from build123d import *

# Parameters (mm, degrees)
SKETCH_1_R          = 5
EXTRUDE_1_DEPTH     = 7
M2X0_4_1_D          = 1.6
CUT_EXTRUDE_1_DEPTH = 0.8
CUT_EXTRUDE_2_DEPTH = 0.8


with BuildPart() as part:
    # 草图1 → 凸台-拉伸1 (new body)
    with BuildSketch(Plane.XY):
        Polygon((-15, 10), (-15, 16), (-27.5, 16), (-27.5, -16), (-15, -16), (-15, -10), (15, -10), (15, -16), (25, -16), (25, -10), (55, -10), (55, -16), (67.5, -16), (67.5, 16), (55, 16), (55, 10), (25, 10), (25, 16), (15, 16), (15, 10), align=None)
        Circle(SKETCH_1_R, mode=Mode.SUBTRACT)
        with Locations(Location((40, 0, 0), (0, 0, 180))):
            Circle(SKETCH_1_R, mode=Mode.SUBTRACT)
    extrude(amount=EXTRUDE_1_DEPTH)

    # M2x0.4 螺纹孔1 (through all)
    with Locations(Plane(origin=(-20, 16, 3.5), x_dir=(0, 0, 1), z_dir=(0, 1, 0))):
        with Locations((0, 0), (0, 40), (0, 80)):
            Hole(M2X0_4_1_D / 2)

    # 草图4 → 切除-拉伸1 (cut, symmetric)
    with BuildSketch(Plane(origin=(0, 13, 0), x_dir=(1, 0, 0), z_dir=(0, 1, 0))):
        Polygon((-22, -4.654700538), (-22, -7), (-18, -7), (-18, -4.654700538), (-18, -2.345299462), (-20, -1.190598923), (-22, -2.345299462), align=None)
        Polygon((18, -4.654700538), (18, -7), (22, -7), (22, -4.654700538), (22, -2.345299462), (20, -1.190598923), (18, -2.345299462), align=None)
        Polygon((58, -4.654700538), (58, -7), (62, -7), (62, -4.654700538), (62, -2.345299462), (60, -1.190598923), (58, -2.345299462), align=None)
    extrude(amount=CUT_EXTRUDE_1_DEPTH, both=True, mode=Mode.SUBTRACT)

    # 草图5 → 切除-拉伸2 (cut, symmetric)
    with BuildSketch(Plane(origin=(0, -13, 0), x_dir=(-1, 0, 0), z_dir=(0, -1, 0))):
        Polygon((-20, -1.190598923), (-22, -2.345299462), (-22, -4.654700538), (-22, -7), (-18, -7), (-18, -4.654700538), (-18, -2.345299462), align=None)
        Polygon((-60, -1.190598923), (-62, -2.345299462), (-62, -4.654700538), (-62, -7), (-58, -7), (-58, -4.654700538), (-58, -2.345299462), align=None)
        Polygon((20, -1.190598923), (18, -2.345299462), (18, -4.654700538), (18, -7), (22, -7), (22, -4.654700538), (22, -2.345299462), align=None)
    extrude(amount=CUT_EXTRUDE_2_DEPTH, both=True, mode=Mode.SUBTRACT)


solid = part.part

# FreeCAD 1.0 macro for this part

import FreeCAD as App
import Part
import Sketcher
from FreeCAD import Vector
Q = App.Units.Quantity

doc = App.newDocument("Part")
body = doc.addObject("PartDesign::Body", "Body")

# Sketch on XY plane
sketch1 = body.newObject("Sketcher::SketchObject", "Sketch")
sketch1.AttachmentSupport = (doc.getObject("XY_Plane"), [""])
sketch1.MapMode = "FlatFace"
sketch1.addGeometry(Part.LineSegment(Vector(-15, 10, 0), Vector(-15, 16, 0)), False)
sketch1.addGeometry(Part.LineSegment(Vector(-15, 16, 0), Vector(-28, 16, 0)), False)
sketch1.addGeometry(Part.LineSegment(Vector(-28, 16, 0), Vector(-28, -16, 0)), False)
sketch1.addGeometry(Part.LineSegment(Vector(-28, -16, 0), Vector(-15, -16, 0)), False)
sketch1.addGeometry(Part.LineSegment(Vector(-15, -16, 0), Vector(-15, -10, 0)), False)
sketch1.addGeometry(Part.LineSegment(Vector(-15, -10, 0), Vector(15, -10, 0)), False)
sketch1.addGeometry(Part.LineSegment(Vector(15, -10, 0), Vector(15, -16, 0)), False)
sketch1.addGeometry(Part.LineSegment(Vector(15, -16, 0), Vector(25, -16, 0)), False)
sketch1.addGeometry(Part.LineSegment(Vector(25, -16, 0), Vector(25, -10, 0)), False)
sketch1.addGeometry(Part.LineSegment(Vector(25, -10, 0), Vector(55, -10, 0)), False)
sketch1.addGeometry(Part.LineSegment(Vector(55, -10, 0), Vector(55, -16, 0)), False)
sketch1.addGeometry(Part.LineSegment(Vector(55, -16, 0), Vector(68, -16, 0)), False)
sketch1.addGeometry(Part.LineSegment(Vector(68, -16, 0), Vector(68, 16, 0)), False)
sketch1.addGeometry(Part.LineSegment(Vector(68, 16, 0), Vector(55, 16, 0)), False)
sketch1.addGeometry(Part.LineSegment(Vector(55, 16, 0), Vector(55, 10, 0)), False)
sketch1.addGeometry(Part.LineSegment(Vector(55, 10, 0), Vector(25, 10, 0)), False)
sketch1.addGeometry(Part.LineSegment(Vector(25, 10, 0), Vector(25, 16, 0)), False)
sketch1.addGeometry(Part.LineSegment(Vector(25, 16, 0), Vector(15, 16, 0)), False)
sketch1.addGeometry(Part.LineSegment(Vector(15, 16, 0), Vector(15, 10, 0)), False)
sketch1.addGeometry(Part.LineSegment(Vector(15, 10, 0), Vector(-15, 10, 0)), False)
sketch1.addGeometry(Part.Circle(Vector(0, 0, 0), Vector(0, 0, 1), 5), False)
sketch1.addGeometry(Part.Circle(Vector(40, 0, 0), Vector(0, 0, 1), 5), False)
sketch1.addConstraint(Sketcher.Constraint("Coincident", 0, 2, 1, 1))
sketch1.addConstraint(Sketcher.Constraint("Coincident", 1, 2, 2, 1))
sketch1.addConstraint(Sketcher.Constraint("Coincident", 2, 2, 3, 1))
sketch1.addConstraint(Sketcher.Constraint("Coincident", 3, 2, 4, 1))
sketch1.addConstraint(Sketcher.Constraint("Coincident", 4, 2, 5, 1))
sketch1.addConstraint(Sketcher.Constraint("Coincident", 5, 2, 6, 1))
sketch1.addConstraint(Sketcher.Constraint("Coincident", 6, 2, 7, 1))
sketch1.addConstraint(Sketcher.Constraint("Coincident", 7, 2, 8, 1))
sketch1.addConstraint(Sketcher.Constraint("Coincident", 8, 2, 9, 1))
sketch1.addConstraint(Sketcher.Constraint("Coincident", 9, 2, 10, 1))
sketch1.addConstraint(Sketcher.Constraint("Coincident", 10, 2, 11, 1))
sketch1.addConstraint(Sketcher.Constraint("Coincident", 11, 2, 12, 1))
sketch1.addConstraint(Sketcher.Constraint("Coincident", 12, 2, 13, 1))
sketch1.addConstraint(Sketcher.Constraint("Coincident", 13, 2, 14, 1))
sketch1.addConstraint(Sketcher.Constraint("Coincident", 14, 2, 15, 1))
sketch1.addConstraint(Sketcher.Constraint("Coincident", 15, 2, 16, 1))
sketch1.addConstraint(Sketcher.Constraint("Coincident", 16, 2, 17, 1))
sketch1.addConstraint(Sketcher.Constraint("Coincident", 17, 2, 18, 1))
sketch1.addConstraint(Sketcher.Constraint("Coincident", 18, 2, 19, 1))
sketch1.addConstraint(Sketcher.Constraint("Coincident", 19, 2, 0, 1))
sketch1.addConstraint(Sketcher.Constraint("Vertical", 0))
sketch1.addConstraint(Sketcher.Constraint("Horizontal", 1))
sketch1.addConstraint(Sketcher.Constraint("Vertical", 2))
sketch1.addConstraint(Sketcher.Constraint("Horizontal", 3))
sketch1.addConstraint(Sketcher.Constraint("Vertical", 4))
sketch1.addConstraint(Sketcher.Constraint("Horizontal", 5))
sketch1.addConstraint(Sketcher.Constraint("Vertical", 6))
sketch1.addConstraint(Sketcher.Constraint("Horizontal", 7))
sketch1.addConstraint(Sketcher.Constraint("Vertical", 8))
sketch1.addConstraint(Sketcher.Constraint("Horizontal", 9))
sketch1.addConstraint(Sketcher.Constraint("Vertical", 10))
sketch1.addConstraint(Sketcher.Constraint("Horizontal", 11))
sketch1.addConstraint(Sketcher.Constraint("Vertical", 12))
sketch1.addConstraint(Sketcher.Constraint("Horizontal", 13))
sketch1.addConstraint(Sketcher.Constraint("Vertical", 14))
sketch1.addConstraint(Sketcher.Constraint("Horizontal", 15))
sketch1.addConstraint(Sketcher.Constraint("Vertical", 16))
sketch1.addConstraint(Sketcher.Constraint("Horizontal", 17))
sketch1.addConstraint(Sketcher.Constraint("Vertical", 18))
sketch1.addConstraint(Sketcher.Constraint("Horizontal", 19))
sketch1.addConstraint(Sketcher.Constraint("Coincident", 20, 3, -1, 1))
sketch1.addConstraint(Sketcher.Constraint("Equal", 20, 21))
sketch1.addConstraint(Sketcher.Constraint("Symmetric", 0, 2, 6, 2, -1, 1))
sketch1.addConstraint(Sketcher.Constraint("Symmetric", 3, 2, 17, 2, -1, 1))
sketch1.addConstraint(Sketcher.Constraint("Symmetric", 3, 2, 6, 2, -2))
sketch1.addConstraint(Sketcher.Constraint("Symmetric", 10, 2, 13, 2, -1))
sketch1.addConstraint(Sketcher.Constraint("Symmetric", 8, 2, 15, 2, -1))
sketch1.addConstraint(Sketcher.Constraint("PointOnObject", 21, 3, -1))
sketch1.addConstraint(Sketcher.Constraint("Horizontal", 5, 2, 8, 2))
sketch1.addConstraint(Sketcher.Constraint("Horizontal", 7, 2, 10, 2))
sketch1.addConstraint(Sketcher.Constraint("Horizontal", 15, 2, 18, 2))
sketch1.addConstraint(Sketcher.Constraint("Equal", 5, 9))
sketch1.addConstraint(Sketcher.Constraint("Equal", 3, 11))
sketch1.addConstraint(Sketcher.Constraint("Diameter", 20, Q("10 mm")))
sketch1.addConstraint(Sketcher.Constraint("DistanceX", 5, 1, 5, 2, Q("30 mm")))
sketch1.addConstraint(Sketcher.Constraint("DistanceX", 7, 1, 7, 2, Q("10 mm")))
sketch1.addConstraint(Sketcher.Constraint("DistanceY", 0, 1, 0, 2, Q("6 mm")))
sketch1.addConstraint(Sketcher.Constraint("DistanceY", 2, 2, 2, 1, Q("32 mm")))
sketch1.addConstraint(Sketcher.Constraint("DistanceX", 1, 2, 1, 1, Q("12.5 mm")))
sketch1.addConstraint(Sketcher.Constraint("DistanceX", -1, 1, 21, 3, Q("40 mm")))
pad1 = body.newObject("PartDesign::Pad", "Pad")
pad1.Profile = sketch1
pad1.Length = 7

# Sketch on XZ plane
sketch2 = body.newObject("Sketcher::SketchObject", "Sketch001")
sketch2.AttachmentSupport = (doc.getObject("XZ_Plane"), [""])
sketch2.MapMode = "FlatFace"
sketch2.AttachmentOffset = App.Placement(Vector(0, 0, -16), App.Rotation())
sketch2.addGeometry(Part.Circle(Vector(-20, 3.5, 0), Vector(0, 0, 1), 0.8), False)
sketch2.addGeometry(Part.Circle(Vector(20, 3.5, 0), Vector(0, 0, 1), 0.8), False)
sketch2.addGeometry(Part.Circle(Vector(60, 3.5, 0), Vector(0, 0, 1), 0.8), False)
sketch2.addConstraint(Sketcher.Constraint("Equal", 0, 1))
sketch2.addConstraint(Sketcher.Constraint("Equal", 1, 2))
sketch2.addConstraint(Sketcher.Constraint("Symmetric", 0, 3, 1, 3, -2))
sketch2.addConstraint(Sketcher.Constraint("Horizontal", 1, 3, 2, 3))
sketch2.addConstraint(Sketcher.Constraint("Diameter", 0, Q("1.6 mm")))
sketch2.addConstraint(Sketcher.Constraint("DistanceX", 0, 3, -1, 1, Q("20 mm")))
sketch2.addConstraint(Sketcher.Constraint("DistanceX", -1, 1, 2, 3, Q("60 mm")))
sketch2.addConstraint(Sketcher.Constraint("DistanceY", -1, 1, 0, 3, Q("3.5 mm")))
doc.recompute()
hole = body.newObject("PartDesign::Hole", "Hole")
hole.Profile = sketch2
hole.ThreadType = "None"
hole.Diameter = 1.6
hole.DepthType = "ThroughAll"
hole.Reversed = True

# Sketch on XZ plane
sketch3 = body.newObject("Sketcher::SketchObject", "Sketch002")
sketch3.AttachmentSupport = (doc.getObject("XZ_Plane"), [""])
sketch3.MapMode = "FlatFace"
sketch3.AttachmentOffset = App.Placement(Vector(0, 0, -13), App.Rotation())
sketch3.addGeometry(Part.LineSegment(Vector(-22, 7, 0), Vector(-18, 7, 0)), False)
sketch3.addGeometry(Part.LineSegment(Vector(-18, 7, 0), Vector(-18, 2.3, 0)), False)
sketch3.addGeometry(Part.LineSegment(Vector(-18, 2.3, 0), Vector(-20, 1.2, 0)), False)
sketch3.addGeometry(Part.LineSegment(Vector(-20, 1.2, 0), Vector(-22, 2.3, 0)), False)
sketch3.addGeometry(Part.LineSegment(Vector(-22, 2.3, 0), Vector(-22, 7, 0)), False)
sketch3.addGeometry(Part.LineSegment(Vector(18, 7, 0), Vector(22, 7, 0)), False)
sketch3.addGeometry(Part.LineSegment(Vector(22, 7, 0), Vector(22, 2.3, 0)), False)
sketch3.addGeometry(Part.LineSegment(Vector(22, 2.3, 0), Vector(20, 1.2, 0)), False)
sketch3.addGeometry(Part.LineSegment(Vector(20, 1.2, 0), Vector(18, 2.3, 0)), False)
sketch3.addGeometry(Part.LineSegment(Vector(18, 2.3, 0), Vector(18, 7, 0)), False)
sketch3.addGeometry(Part.LineSegment(Vector(58, 7, 0), Vector(62, 7, 0)), False)
sketch3.addGeometry(Part.LineSegment(Vector(62, 7, 0), Vector(62, 2.3, 0)), False)
sketch3.addGeometry(Part.LineSegment(Vector(62, 2.3, 0), Vector(60, 1.2, 0)), False)
sketch3.addGeometry(Part.LineSegment(Vector(60, 1.2, 0), Vector(58, 2.3, 0)), False)
sketch3.addGeometry(Part.LineSegment(Vector(58, 2.3, 0), Vector(58, 7, 0)), False)
sketch3.addConstraint(Sketcher.Constraint("Coincident", 0, 2, 1, 1))
sketch3.addConstraint(Sketcher.Constraint("Coincident", 1, 2, 2, 1))
sketch3.addConstraint(Sketcher.Constraint("Coincident", 2, 2, 3, 1))
sketch3.addConstraint(Sketcher.Constraint("Coincident", 3, 2, 4, 1))
sketch3.addConstraint(Sketcher.Constraint("Coincident", 4, 2, 0, 1))
sketch3.addConstraint(Sketcher.Constraint("Coincident", 5, 2, 6, 1))
sketch3.addConstraint(Sketcher.Constraint("Coincident", 6, 2, 7, 1))
sketch3.addConstraint(Sketcher.Constraint("Coincident", 7, 2, 8, 1))
sketch3.addConstraint(Sketcher.Constraint("Coincident", 8, 2, 9, 1))
sketch3.addConstraint(Sketcher.Constraint("Coincident", 9, 2, 5, 1))
sketch3.addConstraint(Sketcher.Constraint("Coincident", 10, 2, 11, 1))
sketch3.addConstraint(Sketcher.Constraint("Coincident", 11, 2, 12, 1))
sketch3.addConstraint(Sketcher.Constraint("Coincident", 12, 2, 13, 1))
sketch3.addConstraint(Sketcher.Constraint("Coincident", 13, 2, 14, 1))
sketch3.addConstraint(Sketcher.Constraint("Coincident", 14, 2, 10, 1))
sketch3.addConstraint(Sketcher.Constraint("Horizontal", 0))
sketch3.addConstraint(Sketcher.Constraint("Vertical", 1))
sketch3.addConstraint(Sketcher.Constraint("Vertical", 4))
sketch3.addConstraint(Sketcher.Constraint("Horizontal", 5))
sketch3.addConstraint(Sketcher.Constraint("Vertical", 6))
sketch3.addConstraint(Sketcher.Constraint("Vertical", 9))
sketch3.addConstraint(Sketcher.Constraint("Horizontal", 10))
sketch3.addConstraint(Sketcher.Constraint("Vertical", 11))
sketch3.addConstraint(Sketcher.Constraint("Vertical", 14))
sketch3.addConstraint(Sketcher.Constraint("Symmetric", 4, 2, 5, 2, -2))
sketch3.addConstraint(Sketcher.Constraint("Symmetric", 2, 2, 7, 2, -2))
sketch3.addConstraint(Sketcher.Constraint("Symmetric", 1, 2, 8, 2, -2))
sketch3.addConstraint(Sketcher.Constraint("Parallel", 2, 7))
sketch3.addConstraint(Sketcher.Constraint("Parallel", 3, 8))
sketch3.addConstraint(Sketcher.Constraint("Parallel", 7, 12))
sketch3.addConstraint(Sketcher.Constraint("Parallel", 8, 13))
sketch3.addConstraint(Sketcher.Constraint("Horizontal", 1, 2, 3, 2))
sketch3.addConstraint(Sketcher.Constraint("Horizontal", 9, 2, 10, 2))
sketch3.addConstraint(Sketcher.Constraint("Horizontal", 8, 2, 11, 2))
sketch3.addConstraint(Sketcher.Constraint("Horizontal", 7, 2, 12, 2))
sketch3.addConstraint(Sketcher.Constraint("Horizontal", 11, 2, 13, 2))
sketch3.addConstraint(Sketcher.Constraint("DistanceX", 0, 1, 0, 2, Q("4 mm")))
sketch3.addConstraint(Sketcher.Constraint("Angle", 2, Q("-150 deg")))
sketch3.addConstraint(Sketcher.Constraint("DistanceX", 0, 2, -1, 1, Q("18 mm")))
sketch3.addConstraint(Sketcher.Constraint("DistanceY", -1, 1, 0, 2, Q("7 mm")))
sketch3.addConstraint(Sketcher.Constraint("DistanceX", -1, 1, 10, 2, Q("62 mm")))
sketch3.addConstraint(Sketcher.Constraint("DistanceY", 1, 2, 1, 1, Q("4.654701 mm")))
pocket1 = body.newObject("PartDesign::Pocket", "Pocket")
pocket1.Profile = sketch3
pocket1.Length = 1.6
pocket1.Midplane = True

# Sketch on XZ plane
sketch4 = body.newObject("Sketcher::SketchObject", "Sketch003")
sketch4.AttachmentSupport = (doc.getObject("XZ_Plane"), [""])
sketch4.MapMode = "FlatFace"
sketch4.AttachmentOffset = App.Placement(Vector(0, 0, 13), App.Rotation())
sketch4.addGeometry(Part.LineSegment(Vector(20, 1.2, 0), Vector(22, 2.3, 0)), False)
sketch4.addGeometry(Part.LineSegment(Vector(22, 2.3, 0), Vector(22, 7, 0)), False)
sketch4.addGeometry(Part.LineSegment(Vector(22, 7, 0), Vector(18, 7, 0)), False)
sketch4.addGeometry(Part.LineSegment(Vector(18, 7, 0), Vector(18, 2.3, 0)), False)
sketch4.addGeometry(Part.LineSegment(Vector(18, 2.3, 0), Vector(20, 1.2, 0)), False)
sketch4.addGeometry(Part.LineSegment(Vector(60, 1.2, 0), Vector(62, 2.3, 0)), False)
sketch4.addGeometry(Part.LineSegment(Vector(62, 2.3, 0), Vector(62, 7, 0)), False)
sketch4.addGeometry(Part.LineSegment(Vector(62, 7, 0), Vector(58, 7, 0)), False)
sketch4.addGeometry(Part.LineSegment(Vector(58, 7, 0), Vector(58, 2.3, 0)), False)
sketch4.addGeometry(Part.LineSegment(Vector(58, 2.3, 0), Vector(60, 1.2, 0)), False)
sketch4.addGeometry(Part.LineSegment(Vector(-20, 1.2, 0), Vector(-18, 2.3, 0)), False)
sketch4.addGeometry(Part.LineSegment(Vector(-18, 2.3, 0), Vector(-18, 7, 0)), False)
sketch4.addGeometry(Part.LineSegment(Vector(-18, 7, 0), Vector(-22, 7, 0)), False)
sketch4.addGeometry(Part.LineSegment(Vector(-22, 7, 0), Vector(-22, 2.3, 0)), False)
sketch4.addGeometry(Part.LineSegment(Vector(-22, 2.3, 0), Vector(-20, 1.2, 0)), False)
sketch4.addConstraint(Sketcher.Constraint("Coincident", 0, 2, 1, 1))
sketch4.addConstraint(Sketcher.Constraint("Coincident", 1, 2, 2, 1))
sketch4.addConstraint(Sketcher.Constraint("Coincident", 2, 2, 3, 1))
sketch4.addConstraint(Sketcher.Constraint("Coincident", 3, 2, 4, 1))
sketch4.addConstraint(Sketcher.Constraint("Coincident", 4, 2, 0, 1))
sketch4.addConstraint(Sketcher.Constraint("Coincident", 5, 2, 6, 1))
sketch4.addConstraint(Sketcher.Constraint("Coincident", 6, 2, 7, 1))
sketch4.addConstraint(Sketcher.Constraint("Coincident", 7, 2, 8, 1))
sketch4.addConstraint(Sketcher.Constraint("Coincident", 8, 2, 9, 1))
sketch4.addConstraint(Sketcher.Constraint("Coincident", 9, 2, 5, 1))
sketch4.addConstraint(Sketcher.Constraint("Coincident", 10, 2, 11, 1))
sketch4.addConstraint(Sketcher.Constraint("Coincident", 11, 2, 12, 1))
sketch4.addConstraint(Sketcher.Constraint("Coincident", 12, 2, 13, 1))
sketch4.addConstraint(Sketcher.Constraint("Coincident", 13, 2, 14, 1))
sketch4.addConstraint(Sketcher.Constraint("Coincident", 14, 2, 10, 1))
sketch4.addConstraint(Sketcher.Constraint("Vertical", 1))
sketch4.addConstraint(Sketcher.Constraint("Horizontal", 2))
sketch4.addConstraint(Sketcher.Constraint("Vertical", 3))
sketch4.addConstraint(Sketcher.Constraint("Vertical", 6))
sketch4.addConstraint(Sketcher.Constraint("Horizontal", 7))
sketch4.addConstraint(Sketcher.Constraint("Vertical", 8))
sketch4.addConstraint(Sketcher.Constraint("Vertical", 11))
sketch4.addConstraint(Sketcher.Constraint("Horizontal", 12))
sketch4.addConstraint(Sketcher.Constraint("Vertical", 13))
sketch4.addConstraint(Sketcher.Constraint("Symmetric", 3, 2, 10, 2, -2))
sketch4.addConstraint(Sketcher.Constraint("Symmetric", 1, 2, 12, 2, -2))
sketch4.addConstraint(Sketcher.Constraint("Symmetric", 4, 2, 14, 2, -2))
sketch4.addConstraint(Sketcher.Constraint("Parallel", 0, 5))
sketch4.addConstraint(Sketcher.Constraint("Parallel", 4, 9))
sketch4.addConstraint(Sketcher.Constraint("Parallel", 5, 10))
sketch4.addConstraint(Sketcher.Constraint("Parallel", 9, 14))
sketch4.addConstraint(Sketcher.Constraint("Horizontal", 0, 2, 3, 2))
sketch4.addConstraint(Sketcher.Constraint("Horizontal", 3, 2, 5, 2))
sketch4.addConstraint(Sketcher.Constraint("Horizontal", 2, 2, 6, 2))
sketch4.addConstraint(Sketcher.Constraint("Horizontal", 5, 2, 8, 2))
sketch4.addConstraint(Sketcher.Constraint("Horizontal", 4, 2, 9, 2))
sketch4.addConstraint(Sketcher.Constraint("DistanceX", 2, 2, 2, 1, Q("4 mm")))
sketch4.addConstraint(Sketcher.Constraint("Angle", 0, Q("30 deg")))
sketch4.addConstraint(Sketcher.Constraint("DistanceX", -1, 1, 0, 2, Q("22 mm")))
sketch4.addConstraint(Sketcher.Constraint("DistanceY", -1, 1, 1, 2, Q("7 mm")))
sketch4.addConstraint(Sketcher.Constraint("DistanceX", -1, 1, 5, 2, Q("62 mm")))
sketch4.addConstraint(Sketcher.Constraint("DistanceY", 1, 1, 1, 2, Q("4.654701 mm")))
pocket2 = body.newObject("PartDesign::Pocket", "Pocket001")
pocket2.Profile = sketch4
pocket2.Length = 1.6
pocket2.Midplane = True

doc.recompute()
